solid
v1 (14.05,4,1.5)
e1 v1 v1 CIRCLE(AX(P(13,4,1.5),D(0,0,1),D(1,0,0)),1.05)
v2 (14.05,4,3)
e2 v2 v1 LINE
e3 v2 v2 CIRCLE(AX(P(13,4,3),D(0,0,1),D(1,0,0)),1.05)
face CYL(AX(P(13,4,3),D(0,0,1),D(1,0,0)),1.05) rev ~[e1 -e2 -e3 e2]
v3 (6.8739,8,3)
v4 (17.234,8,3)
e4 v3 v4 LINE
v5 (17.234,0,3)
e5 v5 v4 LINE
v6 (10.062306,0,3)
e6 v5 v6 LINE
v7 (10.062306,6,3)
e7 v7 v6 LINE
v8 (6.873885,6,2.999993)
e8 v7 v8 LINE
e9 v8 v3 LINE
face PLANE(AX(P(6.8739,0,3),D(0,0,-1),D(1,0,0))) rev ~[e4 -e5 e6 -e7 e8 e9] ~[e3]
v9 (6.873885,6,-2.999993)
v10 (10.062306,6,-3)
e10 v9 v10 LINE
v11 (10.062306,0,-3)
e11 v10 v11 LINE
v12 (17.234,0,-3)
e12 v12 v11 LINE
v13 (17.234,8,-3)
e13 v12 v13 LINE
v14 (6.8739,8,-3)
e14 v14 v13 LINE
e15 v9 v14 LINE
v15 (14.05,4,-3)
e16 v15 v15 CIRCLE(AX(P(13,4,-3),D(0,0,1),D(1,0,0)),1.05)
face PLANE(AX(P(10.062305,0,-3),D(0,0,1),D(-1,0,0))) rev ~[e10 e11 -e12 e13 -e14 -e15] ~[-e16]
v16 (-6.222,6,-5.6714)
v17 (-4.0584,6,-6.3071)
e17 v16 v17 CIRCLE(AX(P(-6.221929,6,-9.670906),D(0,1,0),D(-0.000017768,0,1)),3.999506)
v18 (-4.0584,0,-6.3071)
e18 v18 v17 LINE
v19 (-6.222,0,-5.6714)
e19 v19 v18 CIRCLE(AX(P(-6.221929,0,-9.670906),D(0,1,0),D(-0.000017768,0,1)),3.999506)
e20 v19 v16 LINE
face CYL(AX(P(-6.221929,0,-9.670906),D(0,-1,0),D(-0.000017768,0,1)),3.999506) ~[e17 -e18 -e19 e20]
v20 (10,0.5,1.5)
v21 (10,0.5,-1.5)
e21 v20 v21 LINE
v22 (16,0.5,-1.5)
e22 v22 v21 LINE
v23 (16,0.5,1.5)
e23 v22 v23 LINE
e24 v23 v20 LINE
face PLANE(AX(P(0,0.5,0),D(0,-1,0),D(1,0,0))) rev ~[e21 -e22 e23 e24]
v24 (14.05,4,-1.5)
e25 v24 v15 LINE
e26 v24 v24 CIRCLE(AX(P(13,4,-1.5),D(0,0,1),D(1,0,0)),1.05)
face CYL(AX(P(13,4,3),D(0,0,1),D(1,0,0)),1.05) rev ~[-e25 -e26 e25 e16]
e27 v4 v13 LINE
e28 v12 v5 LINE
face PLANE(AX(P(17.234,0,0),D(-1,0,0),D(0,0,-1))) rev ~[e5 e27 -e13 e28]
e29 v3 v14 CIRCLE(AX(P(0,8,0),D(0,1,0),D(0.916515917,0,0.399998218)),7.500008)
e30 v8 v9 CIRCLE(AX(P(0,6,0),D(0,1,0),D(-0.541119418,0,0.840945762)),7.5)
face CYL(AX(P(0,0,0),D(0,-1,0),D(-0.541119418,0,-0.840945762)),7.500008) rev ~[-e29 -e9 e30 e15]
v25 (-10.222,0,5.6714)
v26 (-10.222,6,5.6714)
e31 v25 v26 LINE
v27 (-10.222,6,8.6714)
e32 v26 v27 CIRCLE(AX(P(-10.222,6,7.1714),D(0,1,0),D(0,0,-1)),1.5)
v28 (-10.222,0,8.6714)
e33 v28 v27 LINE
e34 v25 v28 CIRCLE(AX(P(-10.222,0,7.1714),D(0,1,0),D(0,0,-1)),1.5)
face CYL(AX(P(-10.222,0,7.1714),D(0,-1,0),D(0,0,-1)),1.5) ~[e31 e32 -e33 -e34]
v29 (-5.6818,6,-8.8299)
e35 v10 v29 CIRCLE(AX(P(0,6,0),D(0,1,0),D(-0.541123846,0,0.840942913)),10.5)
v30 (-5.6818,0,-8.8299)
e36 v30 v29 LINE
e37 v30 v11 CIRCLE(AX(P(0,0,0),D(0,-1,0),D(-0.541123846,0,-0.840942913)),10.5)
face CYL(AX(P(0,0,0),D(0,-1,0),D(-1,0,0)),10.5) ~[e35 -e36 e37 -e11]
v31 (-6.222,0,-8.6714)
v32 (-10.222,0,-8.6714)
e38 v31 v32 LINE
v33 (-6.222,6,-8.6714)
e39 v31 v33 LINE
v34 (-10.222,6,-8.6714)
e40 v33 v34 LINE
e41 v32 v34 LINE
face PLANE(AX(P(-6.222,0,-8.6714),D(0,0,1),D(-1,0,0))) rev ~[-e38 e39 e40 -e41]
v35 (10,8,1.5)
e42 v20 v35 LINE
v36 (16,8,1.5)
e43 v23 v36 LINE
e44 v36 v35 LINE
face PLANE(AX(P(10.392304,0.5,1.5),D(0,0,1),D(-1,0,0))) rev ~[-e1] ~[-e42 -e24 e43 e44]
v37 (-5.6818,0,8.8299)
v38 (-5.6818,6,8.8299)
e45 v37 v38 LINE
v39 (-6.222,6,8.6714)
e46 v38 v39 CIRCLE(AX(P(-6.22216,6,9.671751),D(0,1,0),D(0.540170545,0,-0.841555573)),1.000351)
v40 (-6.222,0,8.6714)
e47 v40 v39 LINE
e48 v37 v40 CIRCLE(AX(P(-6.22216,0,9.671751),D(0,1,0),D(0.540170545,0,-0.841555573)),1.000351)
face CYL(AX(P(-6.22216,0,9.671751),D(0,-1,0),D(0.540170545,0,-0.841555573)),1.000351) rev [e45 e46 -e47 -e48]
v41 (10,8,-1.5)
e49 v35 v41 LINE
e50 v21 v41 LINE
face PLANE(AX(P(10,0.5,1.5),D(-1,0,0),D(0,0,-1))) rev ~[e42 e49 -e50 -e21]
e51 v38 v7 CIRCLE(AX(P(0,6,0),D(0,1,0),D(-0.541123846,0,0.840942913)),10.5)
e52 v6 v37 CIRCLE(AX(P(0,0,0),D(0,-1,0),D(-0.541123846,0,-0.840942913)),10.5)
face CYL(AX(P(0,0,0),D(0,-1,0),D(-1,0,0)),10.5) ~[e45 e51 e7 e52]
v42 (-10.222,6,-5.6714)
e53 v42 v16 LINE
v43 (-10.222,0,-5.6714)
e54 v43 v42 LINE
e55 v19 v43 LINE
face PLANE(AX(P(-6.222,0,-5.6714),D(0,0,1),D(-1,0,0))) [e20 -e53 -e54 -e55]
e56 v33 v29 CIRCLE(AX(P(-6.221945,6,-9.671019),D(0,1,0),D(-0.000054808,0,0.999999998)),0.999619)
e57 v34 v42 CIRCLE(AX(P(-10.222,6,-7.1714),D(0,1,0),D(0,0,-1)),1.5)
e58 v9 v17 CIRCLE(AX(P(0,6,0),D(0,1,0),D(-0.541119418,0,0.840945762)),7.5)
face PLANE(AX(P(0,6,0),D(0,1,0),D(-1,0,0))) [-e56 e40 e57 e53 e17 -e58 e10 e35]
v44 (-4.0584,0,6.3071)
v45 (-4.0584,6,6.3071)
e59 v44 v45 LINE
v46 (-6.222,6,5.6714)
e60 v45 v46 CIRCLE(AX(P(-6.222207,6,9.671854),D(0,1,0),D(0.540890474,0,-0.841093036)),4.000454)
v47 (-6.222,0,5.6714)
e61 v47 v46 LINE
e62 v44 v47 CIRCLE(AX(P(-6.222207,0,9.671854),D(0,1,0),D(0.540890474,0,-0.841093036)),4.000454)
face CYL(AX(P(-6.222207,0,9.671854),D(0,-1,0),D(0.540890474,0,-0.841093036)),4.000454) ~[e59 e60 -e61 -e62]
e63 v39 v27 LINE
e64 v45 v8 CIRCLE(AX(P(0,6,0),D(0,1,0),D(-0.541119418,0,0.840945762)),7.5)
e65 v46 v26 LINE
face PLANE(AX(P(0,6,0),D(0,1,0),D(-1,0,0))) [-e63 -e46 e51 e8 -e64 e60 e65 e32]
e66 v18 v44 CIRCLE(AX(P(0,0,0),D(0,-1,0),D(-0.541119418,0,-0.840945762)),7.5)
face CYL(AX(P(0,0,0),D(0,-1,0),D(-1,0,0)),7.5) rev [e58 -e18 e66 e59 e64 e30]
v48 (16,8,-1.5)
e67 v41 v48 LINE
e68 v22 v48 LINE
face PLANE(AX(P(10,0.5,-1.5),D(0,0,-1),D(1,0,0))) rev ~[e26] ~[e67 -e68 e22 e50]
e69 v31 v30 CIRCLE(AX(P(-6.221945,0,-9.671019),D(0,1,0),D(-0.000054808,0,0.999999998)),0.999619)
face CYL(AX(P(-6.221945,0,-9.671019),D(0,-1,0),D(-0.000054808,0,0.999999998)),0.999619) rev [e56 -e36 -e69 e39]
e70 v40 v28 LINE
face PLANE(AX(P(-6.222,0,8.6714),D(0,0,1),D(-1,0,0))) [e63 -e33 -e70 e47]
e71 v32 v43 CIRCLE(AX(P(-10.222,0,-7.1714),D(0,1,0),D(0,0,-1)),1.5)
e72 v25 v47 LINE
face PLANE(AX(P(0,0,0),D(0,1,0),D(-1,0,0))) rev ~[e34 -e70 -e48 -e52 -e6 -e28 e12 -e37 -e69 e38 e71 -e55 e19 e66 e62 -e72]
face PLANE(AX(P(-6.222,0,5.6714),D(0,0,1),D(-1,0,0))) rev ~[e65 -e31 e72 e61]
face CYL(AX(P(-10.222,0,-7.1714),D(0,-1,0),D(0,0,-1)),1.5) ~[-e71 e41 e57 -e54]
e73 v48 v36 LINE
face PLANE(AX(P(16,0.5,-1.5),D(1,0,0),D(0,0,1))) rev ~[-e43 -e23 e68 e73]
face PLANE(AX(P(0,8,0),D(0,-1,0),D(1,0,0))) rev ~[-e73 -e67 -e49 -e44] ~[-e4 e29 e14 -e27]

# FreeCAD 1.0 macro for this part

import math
import FreeCAD as App
import Part
import Sketcher
from FreeCAD import Vector


def add_polygon(sketch, points):
    """Adds a closed chain of lines whose ends are joined by coincident constraints."""
    first, n = sketch.GeometryCount, len(points)
    for a, b in zip(points, points[1:] + points[:1]):
        sketch.addGeometry(Part.LineSegment(App.Vector(*a, 0), App.Vector(*b, 0)), False)
    for i in range(n):
        sketch.addConstraint(Sketcher.Constraint("Coincident", first + i, 2, first + (i + 1) % n, 1))

doc = App.newDocument("Part")
body = doc.addObject("PartDesign::Body", "Body")

sketch1 = body.newObject("Sketcher::SketchObject", "Sketch")
sketch1.AttachmentSupport = (doc.getObject("XZ_Plane"), [""])
sketch1.MapMode = "FlatFace"
sketch1.addGeometry([
    Part.ArcOfCircle(Part.Circle(Vector(-6.2, 9.7, 0), Vector(0, 0, 1), 4), math.radians(-90), math.radians(-57)),
    Part.LineSegment(Vector(-6.2, 5.7, 0), Vector(-10.2, 5.7, 0)),
    Part.ArcOfCircle(Part.Circle(Vector(-10.2, 7.2, 0), Vector(0, 0, 1), 1.5), math.radians(90), math.radians(270)),
    Part.LineSegment(Vector(-10.2, 8.7, 0), Vector(-6.2, 8.7, 0)),
    Part.ArcOfCircle(Part.Circle(Vector(-6.2, 9.7, 0), Vector(0, 0, 1), 1), math.radians(-90), math.radians(-57)),
    Part.ArcOfCircle(Part.Circle(Vector(0, 0, 0), Vector(0, 0, 1), 10.5), math.radians(-123), math.radians(123)),
    Part.ArcOfCircle(Part.Circle(Vector(-6.2, -9.7, 0), Vector(0, 0, 1), 1), math.radians(57), math.radians(90)),
    Part.LineSegment(Vector(-6.2, -8.7, 0), Vector(-10.2, -8.7, 0)),
    Part.ArcOfCircle(Part.Circle(Vector(-10.2, -7.2, 0), Vector(0, 0, 1), 1.5), math.radians(90), math.radians(270)),
    Part.LineSegment(Vector(-10.2, -5.7, 0), Vector(-6.2, -5.7, 0)),
    Part.ArcOfCircle(Part.Circle(Vector(-6.2, -9.7, 0), Vector(0, 0, 1), 4), math.radians(57), math.radians(90)),
    Part.ArcOfCircle(Part.Circle(Vector(0, 0, 0), Vector(0, 0, 1), 7.5), math.radians(-123), math.radians(123)),
], False)
sketch1.addConstraint([
    Sketcher.Constraint("Tangent", 0, 1, 1, 1),
    Sketcher.Constraint("Tangent", 1, 2, 2, 2),
    Sketcher.Constraint("Tangent", 2, 1, 3, 1),
    Sketcher.Constraint("Tangent", 3, 2, 4, 1),
    Sketcher.Constraint("Coincident", 4, 2, 5, 2),
    Sketcher.Constraint("Coincident", 5, 1, 6, 1),
    Sketcher.Constraint("Tangent", 6, 2, 7, 1),
    Sketcher.Constraint("Tangent", 7, 2, 8, 2),
    Sketcher.Constraint("Tangent", 8, 1, 9, 1),
    Sketcher.Constraint("Tangent", 9, 2, 10, 2),
    Sketcher.Constraint("Tangent", 10, 1, 11, 1),
    Sketcher.Constraint("Tangent", 11, 2, 0, 2),
    Sketcher.Constraint("Horizontal", 1),
    Sketcher.Constraint("Horizontal", 3),
    Sketcher.Constraint("Horizontal", 7),
    Sketcher.Constraint("Horizontal", 9),
    Sketcher.Constraint("Coincident", 5, 3, -1, 1),
    Sketcher.Constraint("Coincident", 11, 3, -1, 1),
    Sketcher.Constraint("Coincident", 4, 3, 0, 3),
    Sketcher.Constraint("Coincident", 10, 3, 6, 3),
    Sketcher.Constraint("Equal", 4, 6),
    Sketcher.Constraint("Symmetric", 2, 3, 8, 3, -1),
    Sketcher.Constraint("Vertical", 4, 2, 5, 1),
    Sketcher.Constraint("Radius", 0, 4.0),
    Sketcher.Constraint("Radius", 4, 1.0),
    Sketcher.Constraint("Radius", 11, 7.5),
    Sketcher.Constraint("DistanceX", 1, 2, 1, 1, 4.0),
    Sketcher.Constraint("DistanceX", 0, 3, -1, 1, 6.222),
    Sketcher.Constraint("DistanceY", -1, 1, 4, 2, 8.83),
])
pad1 = body.newObject("PartDesign::Pad", "Pad")
pad1.Profile = sketch1
pad1.Length = 6
pad1.Reversed = True

sketch2 = body.newObject("Sketcher::SketchObject", "Sketch001")
sketch2.AttachmentSupport = (doc.getObject("XZ_Plane"), [""])
sketch2.MapMode = "FlatFace"
sketch2.addGeometry([
    Part.LineSegment(Vector(7, -3, 0), Vector(17, -3, 0)),
    Part.LineSegment(Vector(17, -3, 0), Vector(17, 3, 0)),
    Part.LineSegment(Vector(17, 3, 0), Vector(7, 3, 0)),
    Part.ArcOfCircle(Part.Circle(Vector(0, 0, 0), Vector(0, 0, 1), 8), math.radians(-24), math.radians(24)),
], False)
sketch2.addConstraint([
    Sketcher.Constraint("Coincident", 0, 2, 1, 1),
    Sketcher.Constraint("Coincident", 1, 2, 2, 1),
    Sketcher.Constraint("Coincident", 2, 2, 3, 2),
    Sketcher.Constraint("Coincident", 3, 1, 0, 1),
    Sketcher.Constraint("Horizontal", 0),
    Sketcher.Constraint("Vertical", 1),
    Sketcher.Constraint("Horizontal", 2),
    Sketcher.Constraint("Coincident", 3, 3, -1, 1),
    Sketcher.Constraint("Vertical", 2, 2, 3, 1),
    Sketcher.Constraint("DistanceY", 1, 1, 1, 2, 6.0),
    Sketcher.Constraint("Radius", 3, 7.5),
    Sketcher.Constraint("DistanceX", 0, 1, 0, 2, 10.36),
])
pad2 = body.newObject("PartDesign::Pad", "Pad001")
pad2.Profile = sketch2
pad2.Length = 8
pad2.Reversed = True

sketch3 = body.newObject("Sketcher::SketchObject", "Sketch002")
sketch3.AttachmentSupport = (doc.getObject("XZ_Plane"), [""])
sketch3.MapMode = "FlatFace"
sketch3.AttachmentOffset = App.Placement(Vector(0, 0, -0.5), App.Rotation())
add_polygon(sketch3, [(10, -1.5), (16, -1.5), (16, 1.5), (10, 1.5)])
sketch3.addConstraint([
    Sketcher.Constraint("Horizontal", 0),
    Sketcher.Constraint("Vertical", 1),
    Sketcher.Constraint("Horizontal", 2),
    Sketcher.Constraint("Vertical", 3),
    Sketcher.Constraint("DistanceX", 0, 1, 0, 2, 6.0),
    Sketcher.Constraint("DistanceY", 1, 1, 1, 2, 3.0),
    Sketcher.Constraint("DistanceX", -1, 1, 0, 2, 16.0),
    Sketcher.Constraint("DistanceY", 0, 2, -1, 1, 1.5),
])
pocket1 = body.newObject("PartDesign::Pocket", "Pocket")
pocket1.Profile = sketch3
pocket1.Length = 8

sketch4 = body.newObject("Sketcher::SketchObject", "Sketch003")
sketch4.AttachmentSupport = (doc.getObject("XY_Plane"), [""])
sketch4.MapMode = "FlatFace"
sketch4.AttachmentOffset = App.Placement(Vector(0, 0, 3), App.Rotation())
sketch4.addGeometry(Part.Circle(Vector(13, 4, 0), Vector(0, 0, 1), 1.1), False)
sketch4.addConstraint([
    Sketcher.Constraint("Diameter", 0, 2.1),
    Sketcher.Constraint("DistanceX", -1, 1, 0, 3, 13.0),
    Sketcher.Constraint("DistanceY", -1, 1, 0, 3, 4.0),
])
pocket2 = body.newObject("PartDesign::Pocket", "Pocket001")
pocket2.Profile = sketch4
pocket2.Type = "ThroughAll"

doc.recompute()
